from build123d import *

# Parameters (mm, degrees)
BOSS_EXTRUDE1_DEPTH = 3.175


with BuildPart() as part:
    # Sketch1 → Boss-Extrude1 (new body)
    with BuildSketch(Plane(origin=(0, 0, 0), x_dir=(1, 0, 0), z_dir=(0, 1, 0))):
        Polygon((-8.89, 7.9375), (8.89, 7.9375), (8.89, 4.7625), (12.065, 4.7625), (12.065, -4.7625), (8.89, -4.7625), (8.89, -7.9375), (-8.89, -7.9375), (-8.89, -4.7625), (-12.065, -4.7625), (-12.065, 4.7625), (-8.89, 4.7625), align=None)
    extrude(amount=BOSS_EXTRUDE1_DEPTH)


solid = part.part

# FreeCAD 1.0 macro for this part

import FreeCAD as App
import Part
import Sketcher
Q = App.Units.Quantity


def add_polygon(sketch, points):
    """Adds a closed chain of lines whose ends are joined by coincident constraints."""
    first, n = sketch.GeometryCount, len(points)
    for a, b in zip(points, points[1:] + points[:1]):
        sketch.addGeometry(Part.LineSegment(App.Vector(*a, 0), App.Vector(*b, 0)), False)
    for i in range(n):
        sketch.addConstraint(Sketcher.Constraint("Coincident", first + i, 2, first + (i + 1) % n, 1))

doc = App.newDocument("Part")
params = doc.addObject("Spreadsheet::Sheet", "Params")
for row, (alias, value) in enumerate([
    ("sketch1_width", "0.7 in"),
    ("sketch1_width2", "0.125 in"),
    ("pad1_length", "0.125 in"),
], start=1):
    params.set(f"A{row}", alias)
    params.set(f"B{row}", "=" + value)
    params.setAlias(f"B{row}", alias)

body = doc.addObject("PartDesign::Body", "Body")

# Sketch on XZ plane
sketch1 = body.newObject("Sketcher::SketchObject", "Sketch")
sketch1.AttachmentSupport = (doc.getObject("XZ_Plane"), [""])
sketch1.MapMode = "FlatFace"
add_polygon(sketch1, [(8.9, -7.9), (-8.9, -7.9), (-8.9, -4.8), (-12.1, -4.8), (-12.1, 4.8), (-8.9, 4.8), (-8.9, 7.9), (8.9, 7.9), (8.9, 4.8), (12.1, 4.8), (12.1, -4.8), (8.9, -4.8)])  # lines 0-11
sketch1.addConstraint([
    Sketcher.Constraint("Horizontal", 0),
    Sketcher.Constraint("Vertical", 1),
    Sketcher.Constraint("Horizontal", 2),
    Sketcher.Constraint("Vertical", 3),
    Sketcher.Constraint("Horizontal", 4),
    Sketcher.Constraint("Vertical", 5),
    Sketcher.Constraint("Horizontal", 6),
    Sketcher.Constraint("Vertical", 7),
    Sketcher.Constraint("Horizontal", 8),
    Sketcher.Constraint("Vertical", 9),
    Sketcher.Constraint("Horizontal", 10),
    Sketcher.Constraint("Vertical", 11),
    Sketcher.Constraint("Symmetric", 0, 2, 6, 2, -1, 1),
    Sketcher.Constraint("Symmetric", 2, 2, 8, 2, -1, 1),
    Sketcher.Constraint("Symmetric", 4, 2, 10, 2, -1, 1),
    Sketcher.Constraint("Symmetric", 4, 2, 7, 2, -2),
    Sketcher.Constraint("Equal", 10, 1),
    Sketcher.Constraint("DistanceX", 0, 2, 0, 1, Q("0.7 in")),
    Sketcher.Constraint("DistanceY", 0, 2, 3, 2, Q("0.5 in")),
    Sketcher.Constraint("DistanceX", 2, 2, 2, 1, Q("0.125 in")),
])
sketch1.setExpression("Constraints[29]", "Params.sketch1_width")
sketch1.setExpression("Constraints[31]", "Params.sketch1_width2")
pad1 = body.newObject("PartDesign::Pad", "Pad")
pad1.Profile = sketch1
pad1.setExpression("Length", "Params.pad1_length")
pad1.Reversed = True

doc.recompute()
